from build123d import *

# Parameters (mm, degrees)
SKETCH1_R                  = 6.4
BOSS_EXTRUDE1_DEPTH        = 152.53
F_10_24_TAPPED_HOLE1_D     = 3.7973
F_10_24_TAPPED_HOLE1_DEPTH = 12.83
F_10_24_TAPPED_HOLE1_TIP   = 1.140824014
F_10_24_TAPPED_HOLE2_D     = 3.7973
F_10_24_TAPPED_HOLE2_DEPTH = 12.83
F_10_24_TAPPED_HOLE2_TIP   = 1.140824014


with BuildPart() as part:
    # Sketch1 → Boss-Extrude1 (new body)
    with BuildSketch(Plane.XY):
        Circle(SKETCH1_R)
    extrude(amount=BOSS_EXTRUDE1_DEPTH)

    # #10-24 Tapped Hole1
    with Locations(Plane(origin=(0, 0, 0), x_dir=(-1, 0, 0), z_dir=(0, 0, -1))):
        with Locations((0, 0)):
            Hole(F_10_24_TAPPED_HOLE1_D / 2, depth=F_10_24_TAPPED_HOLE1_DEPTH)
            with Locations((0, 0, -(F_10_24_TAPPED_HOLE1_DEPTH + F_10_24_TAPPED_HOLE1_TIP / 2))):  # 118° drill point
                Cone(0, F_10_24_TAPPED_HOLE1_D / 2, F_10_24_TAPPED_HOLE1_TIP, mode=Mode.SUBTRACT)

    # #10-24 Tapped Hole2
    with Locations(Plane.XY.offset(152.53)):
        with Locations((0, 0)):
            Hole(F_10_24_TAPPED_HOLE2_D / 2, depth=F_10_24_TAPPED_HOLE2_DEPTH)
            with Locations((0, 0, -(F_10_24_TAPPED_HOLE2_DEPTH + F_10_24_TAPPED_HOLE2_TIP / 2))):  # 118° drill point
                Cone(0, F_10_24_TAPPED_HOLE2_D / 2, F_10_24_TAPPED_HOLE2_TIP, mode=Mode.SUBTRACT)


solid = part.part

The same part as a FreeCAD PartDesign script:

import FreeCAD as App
import Part
import Sketcher
from FreeCAD import Vector
Q = App.Units.Quantity

doc = App.newDocument("Part")
params = doc.addObject("Spreadsheet::Sheet", "Params")
for row, (alias, value) in enumerate([
    ("sketch1_diameter", "12.8 mm"),
    ("pad1_length", "152.53 mm"),
    ("hole_diameter", "3.7973 mm"),
    ("hole_depth", "12.83 mm"),
    ("hole2_diameter", "3.7973 mm"),
    ("hole2_depth", "12.83 mm"),
], start=1):
    params.set(f"A{row}", alias)
    params.set(f"B{row}", "=" + value)
    params.setAlias(f"B{row}", alias)

body = doc.addObject("PartDesign::Body", "Body")

# Sketch on XY plane
sketch1 = body.newObject("Sketcher::SketchObject", "Sketch")
sketch1.AttachmentSupport = (doc.getObject("XY_Plane"), [""])
sketch1.MapMode = "FlatFace"
sketch1.addGeometry(Part.Circle(Vector(0, 0, 0), Vector(0, 0, 1), 6), False)
sketch1.addConstraint(Sketcher.Constraint("Coincident", 0, 3, -1, 1))
sketch1.addConstraint(Sketcher.Constraint("Diameter", 0, Q("12.8 mm")))
sketch1.setExpression("Constraints[1]", "Params.sketch1_diameter")
pad1 = body.newObject("PartDesign::Pad", "Pad")
pad1.Profile = sketch1
pad1.setExpression("Length", "Params.pad1_length")

# Sketch on XY plane
sketch2 = body.newObject("Sketcher::SketchObject", "Sketch001")
sketch2.AttachmentSupport = (doc.getObject("XY_Plane"), [""])
sketch2.MapMode = "FlatFace"
sketch2.addGeometry(Part.Circle(Vector(0, 0, 0), Vector(0, 0, 1), 1.9), False)
sketch2.addConstraint(Sketcher.Constraint("Coincident", 0, 3, -1, 1))
sketch2.addConstraint(Sketcher.Constraint("Diameter", 0, Q("3.7973 mm")))
doc.recompute()
hole = body.newObject("PartDesign::Hole", "Hole")
hole.Profile = sketch2
hole.ThreadType = "None"
hole.setExpression("Diameter", "Params.hole_diameter")
hole.DepthType = "Dimension"
hole.setExpression("Depth", "Params.hole_depth")
hole.DrillPoint = "Angled"
hole.DrillPointAngle = 118
hole.Reversed = True

# Sketch on XY plane
sketch3 = body.newObject("Sketcher::SketchObject", "Sketch002")
sketch3.AttachmentSupport = (doc.getObject("XY_Plane"), [""])
sketch3.MapMode = "FlatFace"
sketch3.AttachmentOffset = App.Placement(Vector(0, 0, 152.53), App.Rotation())
sketch3.addGeometry(Part.Circle(Vector(0, 0, 0), Vector(0, 0, 1), 1.9), False)
sketch3.addConstraint(Sketcher.Constraint("Coincident", 0, 3, -1, 1))
sketch3.addConstraint(Sketcher.Constraint("Diameter", 0, Q("3.7973 mm")))
doc.recompute()
hole2 = body.newObject("PartDesign::Hole", "Hole001")
hole2.Profile = sketch3
hole2.ThreadType = "None"
hole2.setExpression("Diameter", "Params.hole2_diameter")
hole2.DepthType = "Dimension"
hole2.setExpression("Depth", "Params.hole2_depth")
hole2.DrillPoint = "Angled"
hole2.DrillPointAngle = 118

doc.recompute()
